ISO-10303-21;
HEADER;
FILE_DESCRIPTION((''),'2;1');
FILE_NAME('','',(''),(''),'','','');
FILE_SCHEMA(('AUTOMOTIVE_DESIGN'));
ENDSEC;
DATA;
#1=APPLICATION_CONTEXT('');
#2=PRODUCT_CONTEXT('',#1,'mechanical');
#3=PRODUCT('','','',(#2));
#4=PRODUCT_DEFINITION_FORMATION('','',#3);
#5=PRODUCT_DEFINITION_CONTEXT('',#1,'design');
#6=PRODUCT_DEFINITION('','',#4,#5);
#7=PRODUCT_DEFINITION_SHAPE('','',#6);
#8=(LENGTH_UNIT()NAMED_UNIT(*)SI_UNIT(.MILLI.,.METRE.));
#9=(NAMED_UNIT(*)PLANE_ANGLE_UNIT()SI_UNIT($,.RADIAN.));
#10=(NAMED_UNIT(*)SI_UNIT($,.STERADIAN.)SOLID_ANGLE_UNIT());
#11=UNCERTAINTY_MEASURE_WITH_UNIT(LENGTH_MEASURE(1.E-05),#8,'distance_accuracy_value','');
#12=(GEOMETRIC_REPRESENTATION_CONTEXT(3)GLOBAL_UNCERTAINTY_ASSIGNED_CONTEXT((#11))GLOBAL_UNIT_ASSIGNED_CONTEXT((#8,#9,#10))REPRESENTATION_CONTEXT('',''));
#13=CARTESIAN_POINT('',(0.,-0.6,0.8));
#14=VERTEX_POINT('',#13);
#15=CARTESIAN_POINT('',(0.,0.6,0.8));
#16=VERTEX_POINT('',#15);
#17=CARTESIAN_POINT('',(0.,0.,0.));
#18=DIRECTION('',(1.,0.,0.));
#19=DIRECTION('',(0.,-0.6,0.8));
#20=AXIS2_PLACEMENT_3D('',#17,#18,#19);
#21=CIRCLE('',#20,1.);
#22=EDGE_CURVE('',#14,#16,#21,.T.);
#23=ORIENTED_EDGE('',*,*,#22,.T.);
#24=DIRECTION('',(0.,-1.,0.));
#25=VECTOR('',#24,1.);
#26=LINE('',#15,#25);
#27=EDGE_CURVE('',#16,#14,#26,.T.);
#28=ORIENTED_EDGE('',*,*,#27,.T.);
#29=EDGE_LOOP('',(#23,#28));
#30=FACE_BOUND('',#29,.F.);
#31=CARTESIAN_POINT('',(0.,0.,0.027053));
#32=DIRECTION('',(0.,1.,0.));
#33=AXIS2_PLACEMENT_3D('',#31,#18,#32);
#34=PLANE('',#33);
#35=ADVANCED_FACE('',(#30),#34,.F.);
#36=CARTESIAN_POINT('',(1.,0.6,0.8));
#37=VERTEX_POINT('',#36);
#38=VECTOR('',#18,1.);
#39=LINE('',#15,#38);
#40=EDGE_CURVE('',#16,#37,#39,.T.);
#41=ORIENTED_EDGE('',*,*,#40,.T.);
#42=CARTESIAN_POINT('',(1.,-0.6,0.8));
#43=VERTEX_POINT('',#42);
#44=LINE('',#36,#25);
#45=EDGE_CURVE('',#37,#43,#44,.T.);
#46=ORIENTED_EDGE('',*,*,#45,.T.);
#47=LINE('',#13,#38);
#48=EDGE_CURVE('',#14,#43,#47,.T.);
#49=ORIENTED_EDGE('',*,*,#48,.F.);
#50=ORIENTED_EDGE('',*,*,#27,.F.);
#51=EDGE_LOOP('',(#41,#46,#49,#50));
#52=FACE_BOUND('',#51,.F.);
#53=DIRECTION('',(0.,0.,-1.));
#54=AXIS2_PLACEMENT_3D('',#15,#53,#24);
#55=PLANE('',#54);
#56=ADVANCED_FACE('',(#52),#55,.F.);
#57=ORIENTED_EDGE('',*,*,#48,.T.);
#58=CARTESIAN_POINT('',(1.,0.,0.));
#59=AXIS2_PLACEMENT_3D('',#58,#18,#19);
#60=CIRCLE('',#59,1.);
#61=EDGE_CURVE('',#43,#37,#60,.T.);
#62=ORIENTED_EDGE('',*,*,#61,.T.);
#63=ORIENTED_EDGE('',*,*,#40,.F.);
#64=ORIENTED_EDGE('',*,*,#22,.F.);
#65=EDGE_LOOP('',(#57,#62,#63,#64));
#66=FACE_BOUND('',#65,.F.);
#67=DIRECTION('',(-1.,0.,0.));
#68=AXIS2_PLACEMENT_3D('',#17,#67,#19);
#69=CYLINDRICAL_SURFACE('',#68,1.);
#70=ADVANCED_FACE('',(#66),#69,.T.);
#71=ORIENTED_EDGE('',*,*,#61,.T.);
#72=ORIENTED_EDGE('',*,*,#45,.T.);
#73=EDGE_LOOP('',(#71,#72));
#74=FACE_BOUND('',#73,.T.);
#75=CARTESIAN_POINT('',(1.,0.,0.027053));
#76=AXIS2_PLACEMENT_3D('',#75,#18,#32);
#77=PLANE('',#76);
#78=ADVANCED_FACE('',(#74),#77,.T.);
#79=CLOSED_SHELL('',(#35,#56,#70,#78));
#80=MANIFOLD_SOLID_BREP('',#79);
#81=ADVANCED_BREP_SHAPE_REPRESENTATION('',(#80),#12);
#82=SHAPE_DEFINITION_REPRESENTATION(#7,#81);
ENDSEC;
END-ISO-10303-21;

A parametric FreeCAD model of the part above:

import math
import FreeCAD as App
import Part
import Sketcher

V = App.Vector

doc = App.newDocument("Part")
body = doc.addObject("PartDesign::Body", "Body")

sketch1 = doc.addObject("Sketcher::SketchObject", "Sketch")
body.addObject(sketch1)
sketch1.AttachmentSupport = (doc.YZ_Plane, [""])
sketch1.MapMode = "FlatFace"
sketch1.addGeometry([
    Part.LineSegment(V(0.6, 0.8, 0), V(-0.6, 0.8, 0)),
    Part.ArcOfCircle(Part.Circle(V(0, 0, 0), V(0, 0, 1), 1), math.radians(127), math.radians(413)),
], False)
sketch1.addConstraint([
    Sketcher.Constraint("Coincident", 0, 1, 1, 2),
    Sketcher.Constraint("Coincident", 1, 1, 0, 2),
    Sketcher.Constraint("Horizontal", 0),
    Sketcher.Constraint("Coincident", 1, 3, -1, 1),
    Sketcher.Constraint("Radius", 1, 1.0),
    Sketcher.Constraint("DistanceX", 0, 2, 0, 1, 1.2),
])
pad1 = doc.addObject("PartDesign::Pad", "Pad")
body.addObject(pad1)
pad1.Profile = sketch1
pad1.Length = 1

doc.recompute()
